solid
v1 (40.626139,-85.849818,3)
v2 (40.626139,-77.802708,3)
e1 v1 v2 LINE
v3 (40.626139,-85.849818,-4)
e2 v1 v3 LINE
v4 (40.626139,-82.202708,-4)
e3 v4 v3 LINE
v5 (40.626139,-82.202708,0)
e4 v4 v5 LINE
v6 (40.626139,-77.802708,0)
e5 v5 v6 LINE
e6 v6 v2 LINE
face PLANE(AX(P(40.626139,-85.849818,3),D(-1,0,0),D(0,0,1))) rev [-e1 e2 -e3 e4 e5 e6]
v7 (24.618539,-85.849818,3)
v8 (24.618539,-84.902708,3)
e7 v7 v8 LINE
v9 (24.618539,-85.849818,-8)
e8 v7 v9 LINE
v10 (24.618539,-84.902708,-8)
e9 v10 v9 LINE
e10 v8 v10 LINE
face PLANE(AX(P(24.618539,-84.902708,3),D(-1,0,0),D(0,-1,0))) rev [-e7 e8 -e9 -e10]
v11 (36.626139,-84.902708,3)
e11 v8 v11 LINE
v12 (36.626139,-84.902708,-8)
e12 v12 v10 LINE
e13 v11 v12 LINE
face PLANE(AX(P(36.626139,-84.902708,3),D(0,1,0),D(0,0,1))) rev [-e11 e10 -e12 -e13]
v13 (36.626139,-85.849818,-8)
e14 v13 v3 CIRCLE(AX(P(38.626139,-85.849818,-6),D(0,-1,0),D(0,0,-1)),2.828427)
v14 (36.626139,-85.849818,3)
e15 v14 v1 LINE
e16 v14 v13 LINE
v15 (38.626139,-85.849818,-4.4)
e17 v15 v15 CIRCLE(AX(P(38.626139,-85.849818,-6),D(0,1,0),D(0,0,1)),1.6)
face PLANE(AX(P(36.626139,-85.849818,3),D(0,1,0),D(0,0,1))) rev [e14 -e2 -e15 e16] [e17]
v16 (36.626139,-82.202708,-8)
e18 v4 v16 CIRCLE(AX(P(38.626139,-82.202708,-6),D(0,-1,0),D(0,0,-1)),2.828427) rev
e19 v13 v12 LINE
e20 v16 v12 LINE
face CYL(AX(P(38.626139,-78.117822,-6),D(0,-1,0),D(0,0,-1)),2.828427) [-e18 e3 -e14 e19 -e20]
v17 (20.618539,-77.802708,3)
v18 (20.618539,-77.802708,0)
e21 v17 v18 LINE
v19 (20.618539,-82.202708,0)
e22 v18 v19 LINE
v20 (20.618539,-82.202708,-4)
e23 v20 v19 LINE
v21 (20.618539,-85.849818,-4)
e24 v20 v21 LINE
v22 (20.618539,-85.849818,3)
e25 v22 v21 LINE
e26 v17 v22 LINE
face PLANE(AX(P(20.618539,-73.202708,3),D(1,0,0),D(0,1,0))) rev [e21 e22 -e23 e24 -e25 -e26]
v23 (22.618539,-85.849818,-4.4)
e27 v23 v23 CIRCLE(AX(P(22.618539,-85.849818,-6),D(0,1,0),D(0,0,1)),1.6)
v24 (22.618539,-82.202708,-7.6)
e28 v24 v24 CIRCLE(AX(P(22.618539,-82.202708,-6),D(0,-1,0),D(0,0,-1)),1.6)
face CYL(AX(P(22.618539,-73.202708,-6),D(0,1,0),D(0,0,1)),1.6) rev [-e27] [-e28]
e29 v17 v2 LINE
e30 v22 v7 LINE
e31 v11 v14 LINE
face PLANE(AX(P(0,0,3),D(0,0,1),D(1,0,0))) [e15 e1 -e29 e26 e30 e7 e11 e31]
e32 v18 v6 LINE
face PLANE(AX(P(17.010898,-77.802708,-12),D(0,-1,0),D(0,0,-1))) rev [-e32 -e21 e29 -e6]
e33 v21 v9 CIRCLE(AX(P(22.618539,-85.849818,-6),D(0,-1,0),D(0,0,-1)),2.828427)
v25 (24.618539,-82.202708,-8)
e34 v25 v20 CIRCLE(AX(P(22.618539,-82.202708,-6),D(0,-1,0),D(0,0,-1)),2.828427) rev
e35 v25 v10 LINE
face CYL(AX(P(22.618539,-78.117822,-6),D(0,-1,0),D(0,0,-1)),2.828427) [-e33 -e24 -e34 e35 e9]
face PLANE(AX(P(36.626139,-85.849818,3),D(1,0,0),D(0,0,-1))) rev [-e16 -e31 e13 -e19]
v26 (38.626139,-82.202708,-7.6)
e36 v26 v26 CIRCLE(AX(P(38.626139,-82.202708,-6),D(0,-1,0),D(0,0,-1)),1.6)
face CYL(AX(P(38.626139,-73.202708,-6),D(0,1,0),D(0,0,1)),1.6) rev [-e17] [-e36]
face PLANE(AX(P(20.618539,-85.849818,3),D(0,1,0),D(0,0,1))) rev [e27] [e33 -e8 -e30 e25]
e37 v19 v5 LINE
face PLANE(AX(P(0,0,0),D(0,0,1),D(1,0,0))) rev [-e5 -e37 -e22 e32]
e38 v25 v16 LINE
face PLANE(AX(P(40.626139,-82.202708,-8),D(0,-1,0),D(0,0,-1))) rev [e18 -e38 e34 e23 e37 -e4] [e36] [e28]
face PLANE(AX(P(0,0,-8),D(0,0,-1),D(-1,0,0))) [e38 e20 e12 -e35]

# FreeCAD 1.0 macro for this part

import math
import FreeCAD as App
import Part
import Sketcher
Q = App.Units.Quantity


def add_polygon(sketch, points):
    """Adds a closed chain of lines whose ends are joined by coincident constraints."""
    first, n = sketch.GeometryCount, len(points)
    for a, b in zip(points, points[1:] + points[:1]):
        sketch.addGeometry(Part.LineSegment(App.Vector(*a, 0), App.Vector(*b, 0)), False)
    for i in range(n):
        sketch.addConstraint(Sketcher.Constraint("Coincident", first + i, 2, first + (i + 1) % n, 1))

doc = App.newDocument("Part")
body = doc.addObject("PartDesign::Body", "Body")

# Sketch on XY plane
sketch1 = body.newObject("Sketcher::SketchObject", "Sketch")
sketch1.AttachmentSupport = (doc.getObject("XY_Plane"), [""])
sketch1.MapMode = "FlatFace"
add_polygon(sketch1, [(24.6, -85.8), (24.6, -84.9), (36.6, -84.9), (36.6, -85.8), (40.6, -85.8), (40.6, -73.2), (20.6, -73.2), (20.6, -85.8)])  # lines 0-7
sketch1.addConstraint(Sketcher.Constraint("Vertical", 0))
sketch1.addConstraint(Sketcher.Constraint("Horizontal", 1))
sketch1.addConstraint(Sketcher.Constraint("Vertical", 2))
sketch1.addConstraint(Sketcher.Constraint("Horizontal", 3))
sketch1.addConstraint(Sketcher.Constraint("Vertical", 4))
sketch1.addConstraint(Sketcher.Constraint("Horizontal", 5))
sketch1.addConstraint(Sketcher.Constraint("Vertical", 6))
sketch1.addConstraint(Sketcher.Constraint("Horizontal", 7))
sketch1.addConstraint(Sketcher.Constraint("Horizontal", 3, 2, 6, 2))
sketch1.addConstraint(Sketcher.Constraint("Equal", 3, 7))
sketch1.addConstraint(Sketcher.Constraint("DistanceX", 3, 1, 3, 2, Q("4 mm")))
sketch1.addConstraint(Sketcher.Constraint("DistanceY", 1, 2, 4, 2, Q("11.7 mm")))
sketch1.addConstraint(Sketcher.Constraint("DistanceX", 1, 1, 1, 2, Q("12.0076 mm")))
sketch1.addConstraint(Sketcher.Constraint("DistanceY", 0, 1, 0, 2, Q("0.947111 mm")))
sketch1.addConstraint(Sketcher.Constraint("DistanceX", -1, 1, 0, 2, Q("24.618539 mm")))
sketch1.addConstraint(Sketcher.Constraint("DistanceY", 2, 2, -1, 1, Q("85.849818 mm")))
pad1 = body.newObject("PartDesign::Pad", "Pad")
pad1.Profile = sketch1
pad1.Length = 3

# Sketch on XY plane
sketch2 = body.newObject("Sketcher::SketchObject", "Sketch001")
sketch2.AttachmentSupport = (doc.getObject("XY_Plane"), [""])
sketch2.MapMode = "FlatFace"
add_polygon(sketch2, [(40.6, -73.2), (40.6, -78.2), (20.6, -78.2), (20.6, -73.2)])  # lines 0-3
sketch2.addConstraint(Sketcher.Constraint("Vertical", 0))
sketch2.addConstraint(Sketcher.Constraint("Horizontal", 1))
sketch2.addConstraint(Sketcher.Constraint("Vertical", 2))
sketch2.addConstraint(Sketcher.Constraint("Horizontal", 3))
sketch2.addConstraint(Sketcher.Constraint("DistanceY", 0, 2, 0, 1, Q("5 mm")))
sketch2.addConstraint(Sketcher.Constraint("DistanceX", 1, 2, 1, 1, Q("20.0076 mm")))
sketch2.addConstraint(Sketcher.Constraint("DistanceX", -1, 1, 0, 2, Q("40.626139 mm")))
sketch2.addConstraint(Sketcher.Constraint("DistanceY", 0, 2, -1, 1, Q("78.202708 mm")))
pad2 = body.newObject("PartDesign::Pad", "Pad001")
pad2.Profile = sketch2
pad2.Length = 8
pad2.Reversed = True

# Sketch on XY plane
sketch3 = body.newObject("Sketcher::SketchObject", "Sketch002")
sketch3.AttachmentSupport = (doc.getObject("XY_Plane"), [""])
sketch3.MapMode = "FlatFace"
add_polygon(sketch3, [(40.6, -82.2), (40.6, -85.8), (36.6, -85.8), (36.6, -84.9), (24.6, -84.9), (24.6, -85.8), (20.6, -85.8), (20.6, -82.2)])  # lines 0-7
sketch3.addConstraint(Sketcher.Constraint("Vertical", 0))
sketch3.addConstraint(Sketcher.Constraint("Horizontal", 1))
sketch3.addConstraint(Sketcher.Constraint("Vertical", 2))
sketch3.addConstraint(Sketcher.Constraint("Horizontal", 3))
sketch3.addConstraint(Sketcher.Constraint("Vertical", 4))
sketch3.addConstraint(Sketcher.Constraint("Horizontal", 5))
sketch3.addConstraint(Sketcher.Constraint("Vertical", 6))
sketch3.addConstraint(Sketcher.Constraint("Horizontal", 7))
sketch3.addConstraint(Sketcher.Constraint("Horizontal", 1, 2, 4, 2))
sketch3.addConstraint(Sketcher.Constraint("Equal", 1, 5))
sketch3.addConstraint(Sketcher.Constraint("DistanceX", 1, 2, 1, 1, Q("4 mm")))
sketch3.addConstraint(Sketcher.Constraint("DistanceY", 3, 2, 6, 2, Q("2.7 mm")))
sketch3.addConstraint(Sketcher.Constraint("DistanceX", 3, 2, 3, 1, Q("12.0076 mm")))
sketch3.addConstraint(Sketcher.Constraint("DistanceY", 0, 2, 0, 1, Q("3.647111 mm")))
sketch3.addConstraint(Sketcher.Constraint("DistanceX", -1, 1, 0, 2, Q("40.626139 mm")))
sketch3.addConstraint(Sketcher.Constraint("DistanceY", 0, 2, -1, 1, Q("85.849818 mm")))
pad3 = body.newObject("PartDesign::Pad", "Pad002")
pad3.Profile = sketch3
pad3.Length = 8
pad3.Reversed = True

# Sketch on XY plane
sketch4 = body.newObject("Sketcher::SketchObject", "Sketch003")
sketch4.AttachmentSupport = (doc.getObject("XY_Plane"), [""])
sketch4.MapMode = "FlatFace"
sketch4.AttachmentOffset = App.Placement(App.Vector(0, 0, 3), App.Rotation())
add_polygon(sketch4, [(24.6, -73.2), (24.6, -74.6), (36.6, -74.6), (36.6, -73.2)])  # lines 0-3
sketch4.addConstraint(Sketcher.Constraint("Vertical", 0))
sketch4.addConstraint(Sketcher.Constraint("Horizontal", 1))
sketch4.addConstraint(Sketcher.Constraint("Vertical", 2))
sketch4.addConstraint(Sketcher.Constraint("Horizontal", 3))
sketch4.addConstraint(Sketcher.Constraint("DistanceY", 0, 2, 0, 1, Q("1.4 mm")))
sketch4.addConstraint(Sketcher.Constraint("DistanceX", 1, 1, 1, 2, Q("12.0076 mm")))
sketch4.addConstraint(Sketcher.Constraint("DistanceX", -1, 1, 0, 2, Q("24.618539 mm")))
sketch4.addConstraint(Sketcher.Constraint("DistanceY", 0, 2, -1, 1, Q("74.602708 mm")))
pocket1 = body.newObject("PartDesign::Pocket", "Pocket")
pocket1.Profile = sketch4
pocket1.Length = 27.7

# Sketch on XZ plane
sketch5 = body.newObject("Sketcher::SketchObject", "Sketch004")
sketch5.AttachmentSupport = (doc.getObject("XZ_Plane"), [""])
sketch5.MapMode = "FlatFace"
sketch5.AttachmentOffset = App.Placement(App.Vector(0, 0, 73.202708), App.Rotation())
sketch5.addGeometry(Part.Circle(App.Vector(22.6, -6, 0), App.Vector(0, 0, 1), 1.6), False)
sketch5.addGeometry(Part.Circle(App.Vector(38.6, -6, 0), App.Vector(0, 0, 1), 1.6), False)
sketch5.addConstraint(Sketcher.Constraint("Equal", 0, 1))
sketch5.addConstraint(Sketcher.Constraint("Horizontal", 0, 3, 1, 3))
sketch5.addConstraint(Sketcher.Constraint("Diameter", 0, Q("3.2 mm")))
sketch5.addConstraint(Sketcher.Constraint("DistanceY", 0, 3, -1, 1, Q("6 mm")))
sketch5.addConstraint(Sketcher.Constraint("DistanceX", 0, 3, 1, 3, Q("16.0076 mm")))
sketch5.addConstraint(Sketcher.Constraint("DistanceX", -1, 1, 0, 3, Q("22.618539 mm")))
doc.recompute()
hole = body.newObject("PartDesign::Hole", "Hole")
hole.Profile = sketch5
hole.ThreadType = "None"
hole.Diameter = 3.2
hole.DepthType = "Dimension"
hole.Depth = 15.5
hole.DrillPoint = "Angled"
hole.DrillPointAngle = 118
hole.Reversed = True

# Sketch on YZ plane
sketch6 = body.newObject("Sketcher::SketchObject", "Sketch005")
sketch6.AttachmentSupport = (doc.getObject("YZ_Plane"), [""])
sketch6.MapMode = "FlatFace"
sketch6.AttachmentOffset = App.Placement(App.Vector(0, 0, 40.626139), App.Rotation())
add_polygon(sketch6, [(-77.8, 0), (-78.2, 0), (-78.2, -8), (-77.8, -8)])  # lines 0-3
sketch6.addConstraint(Sketcher.Constraint("Horizontal", 0))
sketch6.addConstraint(Sketcher.Constraint("Vertical", 1))
sketch6.addConstraint(Sketcher.Constraint("Horizontal", 2))
sketch6.addConstraint(Sketcher.Constraint("Vertical", 3))
sketch6.addConstraint(Sketcher.Constraint("PointOnObject", 0, 2, -1))
sketch6.addConstraint(Sketcher.Constraint("DistanceY", 1, 2, 1, 1, Q("8 mm")))
sketch6.addConstraint(Sketcher.Constraint("DistanceX", 0, 2, 0, 1, Q("0.4 mm")))
sketch6.addConstraint(Sketcher.Constraint("DistanceX", 0, 2, -1, 1, Q("78.202708 mm")))
pocket2 = body.newObject("PartDesign::Pocket", "Pocket001")
pocket2.Profile = sketch6
pocket2.Length = 28.5

# Sketch on XZ plane
sketch7 = body.newObject("Sketcher::SketchObject", "Sketch006")
sketch7.AttachmentSupport = (doc.getObject("XZ_Plane"), [""])
sketch7.MapMode = "FlatFace"
sketch7.AttachmentOffset = App.Placement(App.Vector(0, 0, 73.202708), App.Rotation())
sketch7.addGeometry(Part.ArcOfCircle(Part.Circle(App.Vector(22.6, -6, 0), App.Vector(0, 0, 1), 2.8), math.radians(-135), math.radians(-45)), False)
sketch7.addGeometry(Part.LineSegment(App.Vector(20.6, -8, 0), App.Vector(24.6, -8, 0)), False)
sketch7.addGeometry(Part.ArcOfCircle(Part.Circle(App.Vector(22.6, -6, 0), App.Vector(0, 0, 1), 2.8), math.radians(135), math.radians(225)), False)
sketch7.addGeometry(Part.LineSegment(App.Vector(20.6, -4, 0), App.Vector(20.6, -8, 0)), False)
sketch7.addGeometry(Part.LineSegment(App.Vector(36.6, -8, 0), App.Vector(40.6, -8, 0)), False)
sketch7.addGeometry(Part.ArcOfCircle(Part.Circle(App.Vector(38.6, -6, 0), App.Vector(0, 0, 1), 2.8), math.radians(-135), math.radians(-45)), False)
sketch7.addGeometry(Part.ArcOfCircle(Part.Circle(App.Vector(38.6, -6, 0), App.Vector(0, 0, 1), 2.8), math.radians(-45), math.radians(45)), False)
sketch7.addGeometry(Part.LineSegment(App.Vector(40.6, -8, 0), App.Vector(40.6, -4, 0)), False)
sketch7.addConstraint(Sketcher.Constraint("Coincident", 0, 1, 1, 1))
sketch7.addConstraint(Sketcher.Constraint("Coincident", 1, 2, 0, 2))
sketch7.addConstraint(Sketcher.Constraint("Coincident", 2, 1, 3, 1))
sketch7.addConstraint(Sketcher.Constraint("Coincident", 3, 2, 2, 2))
sketch7.addConstraint(Sketcher.Constraint("Coincident", 4, 1, 5, 1))
sketch7.addConstraint(Sketcher.Constraint("Coincident", 5, 2, 4, 2))
sketch7.addConstraint(Sketcher.Constraint("Coincident", 6, 1, 7, 1))
sketch7.addConstraint(Sketcher.Constraint("Coincident", 7, 2, 6, 2))
sketch7.addConstraint(Sketcher.Constraint("Horizontal", 1))
sketch7.addConstraint(Sketcher.Constraint("Vertical", 3))
sketch7.addConstraint(Sketcher.Constraint("Horizontal", 4))
sketch7.addConstraint(Sketcher.Constraint("Vertical", 7))
sketch7.addConstraint(Sketcher.Constraint("Coincident", 2, 3, 0, 3))
sketch7.addConstraint(Sketcher.Constraint("Coincident", 6, 3, 5, 3))
sketch7.addConstraint(Sketcher.Constraint("Coincident", 3, 2, 0, 1))
sketch7.addConstraint(Sketcher.Constraint("Coincident", 6, 1, 5, 2))
sketch7.addConstraint(Sketcher.Constraint("Equal", 2, 5))
sketch7.addConstraint(Sketcher.Constraint("Horizontal", 2, 3, 5, 3))
sketch7.addConstraint(Sketcher.Constraint("Horizontal", 3, 2, 4, 1))
sketch7.addConstraint(Sketcher.Constraint("Equal", 4, 3))
sketch7.addConstraint(Sketcher.Constraint("DistanceX", 1, 1, 1, 2, Q("4 mm")))
sketch7.addConstraint(Sketcher.Constraint("DistanceY", 0, 3, -1, 1, Q("6 mm")))
sketch7.addConstraint(Sketcher.Constraint("DistanceX", 0, 3, 5, 3, Q("16.0076 mm")))
sketch7.addConstraint(Sketcher.Constraint("DistanceX", -1, 1, 0, 3, Q("22.618539 mm")))
pad4 = body.newObject("PartDesign::Pad", "Pad003")
pad4.Profile = sketch7
pad4.Length = 4.6

# Sketch on XZ plane
sketch8 = body.newObject("Sketcher::SketchObject", "Sketch007")
sketch8.AttachmentSupport = (doc.getObject("XZ_Plane"), [""])
sketch8.MapMode = "FlatFace"
sketch8.AttachmentOffset = App.Placement(App.Vector(0, 0, 85.849818), App.Rotation())
sketch8.addGeometry(Part.LineSegment(App.Vector(20.6, -8, 0), App.Vector(20.6, -4, 0)), False)
sketch8.addGeometry(Part.ArcOfCircle(Part.Circle(App.Vector(22.6, -6, 0), App.Vector(0, 0, 1), 2.8), math.radians(135), math.radians(225)), False)
sketch8.addGeometry(Part.LineSegment(App.Vector(24.6, -8, 0), App.Vector(20.6, -8, 0)), False)
sketch8.addGeometry(Part.ArcOfCircle(Part.Circle(App.Vector(22.6, -6, 0), App.Vector(0, 0, 1), 2.8), math.radians(-135), math.radians(-45)), False)
sketch8.addGeometry(Part.LineSegment(App.Vector(40.6, -8, 0), App.Vector(36.6, -8, 0)), False)
sketch8.addGeometry(Part.ArcOfCircle(Part.Circle(App.Vector(38.6, -6, 0), App.Vector(0, 0, 1), 2.8), math.radians(-135), math.radians(-45)), False)
sketch8.addGeometry(Part.LineSegment(App.Vector(40.6, -4, 0), App.Vector(40.6, -8, 0)), False)
sketch8.addGeometry(Part.ArcOfCircle(Part.Circle(App.Vector(38.6, -6, 0), App.Vector(0, 0, 1), 2.8), math.radians(-45), math.radians(45)), False)
sketch8.addConstraint(Sketcher.Constraint("Coincident", 0, 1, 1, 2))
sketch8.addConstraint(Sketcher.Constraint("Coincident", 1, 1, 0, 2))
sketch8.addConstraint(Sketcher.Constraint("Coincident", 2, 1, 3, 2))
sketch8.addConstraint(Sketcher.Constraint("Coincident", 3, 1, 2, 2))
sketch8.addConstraint(Sketcher.Constraint("Coincident", 4, 1, 5, 2))
sketch8.addConstraint(Sketcher.Constraint("Coincident", 5, 1, 4, 2))
sketch8.addConstraint(Sketcher.Constraint("Coincident", 6, 1, 7, 2))
sketch8.addConstraint(Sketcher.Constraint("Coincident", 7, 1, 6, 2))
sketch8.addConstraint(Sketcher.Constraint("Vertical", 0))
sketch8.addConstraint(Sketcher.Constraint("Horizontal", 2))
sketch8.addConstraint(Sketcher.Constraint("Horizontal", 4))
sketch8.addConstraint(Sketcher.Constraint("Vertical", 6))
sketch8.addConstraint(Sketcher.Constraint("Coincident", 3, 3, 1, 3))
sketch8.addConstraint(Sketcher.Constraint("Coincident", 7, 3, 5, 3))
sketch8.addConstraint(Sketcher.Constraint("Coincident", 3, 1, 0, 1))
sketch8.addConstraint(Sketcher.Constraint("Coincident", 7, 1, 4, 1))
sketch8.addConstraint(Sketcher.Constraint("Equal", 3, 5))
sketch8.addConstraint(Sketcher.Constraint("Horizontal", 3, 3, 5, 3))
sketch8.addConstraint(Sketcher.Constraint("Horizontal", 3, 1, 4, 1))
sketch8.addConstraint(Sketcher.Constraint("Equal", 4, 0))
sketch8.addConstraint(Sketcher.Constraint("DistanceX", 2, 2, 2, 1, Q("4 mm")))
sketch8.addConstraint(Sketcher.Constraint("DistanceY", 1, 3, -1, 1, Q("6 mm")))
sketch8.addConstraint(Sketcher.Constraint("DistanceX", 3, 3, 5, 3, Q("16.0076 mm")))
sketch8.addConstraint(Sketcher.Constraint("DistanceX", -1, 1, 1, 3, Q("22.618539 mm")))
pad5 = body.newObject("PartDesign::Pad", "Pad004")
pad5.Profile = sketch8
pad5.Length = 3.647111
pad5.Reversed = True

# Sketch on XY plane
sketch9 = body.newObject("Sketcher::SketchObject", "Sketch008")
sketch9.AttachmentSupport = (doc.getObject("XY_Plane"), [""])
sketch9.MapMode = "FlatFace"
sketch9.AttachmentOffset = App.Placement(App.Vector(0, 0, 3), App.Rotation())
add_polygon(sketch9, [(17, -70), (17, -78), (43, -78), (43, -70)])  # lines 0-3
sketch9.addConstraint(Sketcher.Constraint("Vertical", 0))
sketch9.addConstraint(Sketcher.Constraint("Horizontal", 1))
sketch9.addConstraint(Sketcher.Constraint("Vertical", 2))
sketch9.addConstraint(Sketcher.Constraint("Horizontal", 3))
sketch9.addConstraint(Sketcher.Constraint("DistanceX", 1, 1, 1, 2, Q("25.75977 mm")))
sketch9.addConstraint(Sketcher.Constraint("DistanceX", -1, 1, 0, 2, Q("17.010898 mm")))
sketch9.addConstraint(Sketcher.Constraint("DistanceY", 0, 2, 0, 1, Q("7.605957 mm")))
sketch9.addConstraint(Sketcher.Constraint("DistanceY", 2, 2, -1, 1, Q("70.196751 mm")))
pocket3 = body.newObject("PartDesign::Pocket", "Pocket002")
pocket3.Profile = sketch9
pocket3.Length = 15

doc.recompute()
